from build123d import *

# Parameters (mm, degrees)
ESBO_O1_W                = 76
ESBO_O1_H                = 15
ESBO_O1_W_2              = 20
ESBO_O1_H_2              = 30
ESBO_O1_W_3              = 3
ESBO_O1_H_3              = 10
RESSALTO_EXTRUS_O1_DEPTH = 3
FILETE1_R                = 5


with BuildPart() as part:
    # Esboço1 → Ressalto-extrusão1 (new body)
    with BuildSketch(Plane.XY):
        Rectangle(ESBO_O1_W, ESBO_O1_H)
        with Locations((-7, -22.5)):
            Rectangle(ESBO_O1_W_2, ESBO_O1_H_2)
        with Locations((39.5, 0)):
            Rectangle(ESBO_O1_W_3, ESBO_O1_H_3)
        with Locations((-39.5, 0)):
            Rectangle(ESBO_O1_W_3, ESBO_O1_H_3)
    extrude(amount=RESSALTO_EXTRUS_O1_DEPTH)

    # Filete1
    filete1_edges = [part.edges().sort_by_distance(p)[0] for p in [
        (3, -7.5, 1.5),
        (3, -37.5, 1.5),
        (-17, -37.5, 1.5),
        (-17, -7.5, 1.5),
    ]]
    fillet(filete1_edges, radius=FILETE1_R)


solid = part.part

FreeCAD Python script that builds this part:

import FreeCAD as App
import Part
import Sketcher

V = App.Vector
Q = App.Units.Quantity


def edges_at(feature, points):
    """Names of the edges that pass closest to the given points."""
    edges = feature.Shape.Edges
    near = lambda p: min(range(len(edges)), key=lambda i: edges[i].distToShape(Part.Vertex(*p))[0])
    return sorted({f"Edge{near(p) + 1}" for p in points})

doc = App.newDocument("Part")
body = doc.addObject("PartDesign::Body", "Body")

# Sketch on XY plane
sketch1 = doc.addObject("Sketcher::SketchObject", "Sketch")
body.addObject(sketch1)
sketch1.AttachmentSupport = (doc.XY_Plane, [""])
sketch1.MapMode = "FlatFace"
sketch1.addGeometry([
    Part.LineSegment(V(-38, -5, 0), V(-38, -7.5, 0)),  # 0
    Part.LineSegment(V(-38, -7.5, 0), V(-17, -7.5, 0)),  # 1
    Part.LineSegment(V(-17, -7.5, 0), V(-17, -37.5, 0)),  # 2
    Part.LineSegment(V(-17, -37.5, 0), V(3, -37.5, 0)),  # 3
    Part.LineSegment(V(3, -37.5, 0), V(3, -7.5, 0)),  # 4
    Part.LineSegment(V(3, -7.5, 0), V(38, -7.5, 0)),  # 5
    Part.LineSegment(V(38, -7.5, 0), V(38, -5, 0)),  # 6
    Part.LineSegment(V(38, -5, 0), V(41, -5, 0)),  # 7
    Part.LineSegment(V(41, -5, 0), V(41, 5, 0)),  # 8
    Part.LineSegment(V(41, 5, 0), V(38, 5, 0)),  # 9
    Part.LineSegment(V(38, 5, 0), V(38, 7.5, 0)),  # 10
    Part.LineSegment(V(38, 7.5, 0), V(-38, 7.5, 0)),  # 11
    Part.LineSegment(V(-38, 7.5, 0), V(-38, 5, 0)),  # 12
    Part.LineSegment(V(-38, 5, 0), V(-41, 5, 0)),  # 13
    Part.LineSegment(V(-41, 5, 0), V(-41, -5, 0)),  # 14
    Part.LineSegment(V(-41, -5, 0), V(-38, -5, 0)),  # 15
], False)
sketch1.addConstraint([
    Sketcher.Constraint("Coincident", 0, 2, 1, 1),
    Sketcher.Constraint("Coincident", 1, 2, 2, 1),
    Sketcher.Constraint("Coincident", 2, 2, 3, 1),
    Sketcher.Constraint("Coincident", 3, 2, 4, 1),
    Sketcher.Constraint("Coincident", 4, 2, 5, 1),
    Sketcher.Constraint("Coincident", 5, 2, 6, 1),
    Sketcher.Constraint("Coincident", 6, 2, 7, 1),
    Sketcher.Constraint("Coincident", 7, 2, 8, 1),
    Sketcher.Constraint("Coincident", 8, 2, 9, 1),
    Sketcher.Constraint("Coincident", 9, 2, 10, 1),
    Sketcher.Constraint("Coincident", 10, 2, 11, 1),
    Sketcher.Constraint("Coincident", 11, 2, 12, 1),
    Sketcher.Constraint("Coincident", 12, 2, 13, 1),
    Sketcher.Constraint("Coincident", 13, 2, 14, 1),
    Sketcher.Constraint("Coincident", 14, 2, 15, 1),
    Sketcher.Constraint("Coincident", 15, 2, 0, 1),
    Sketcher.Constraint("Vertical", 0),
    Sketcher.Constraint("Horizontal", 1),
    Sketcher.Constraint("Vertical", 2),
    Sketcher.Constraint("Horizontal", 3),
    Sketcher.Constraint("Vertical", 4),
    Sketcher.Constraint("Horizontal", 5),
    Sketcher.Constraint("Vertical", 6),
    Sketcher.Constraint("Horizontal", 7),
    Sketcher.Constraint("Vertical", 8),
    Sketcher.Constraint("Horizontal", 9),
    Sketcher.Constraint("Vertical", 10),
    Sketcher.Constraint("Horizontal", 11),
    Sketcher.Constraint("Vertical", 12),
    Sketcher.Constraint("Horizontal", 13),
    Sketcher.Constraint("Vertical", 14),
    Sketcher.Constraint("Horizontal", 15),
    Sketcher.Constraint("Symmetric", 0, 2, 10, 2, -1, 1),
    Sketcher.Constraint("Symmetric", 5, 2, 11, 2, -1, 1),
    Sketcher.Constraint("Symmetric", 7, 2, 13, 2, -1, 1),
    Sketcher.Constraint("Symmetric", 9, 2, 12, 2, -2),
    Sketcher.Constraint("Horizontal", 7, 2, 14, 2),
    Sketcher.Constraint("DistanceX", 1, 1, 1, 2, Q("21 mm")),
    Sketcher.Constraint("DistanceX", 3, 1, 3, 2, Q("20 mm")),
    Sketcher.Constraint("DistanceX", 5, 1, 5, 2, Q("35 mm")),
    Sketcher.Constraint("DistanceX", 7, 1, 7, 2, Q("3 mm")),
    Sketcher.Constraint("DistanceY", 2, 2, 2, 1, Q("30 mm")),
    Sketcher.Constraint("DistanceY", 8, 1, 8, 2, Q("10 mm")),
    Sketcher.Constraint("DistanceY", 0, 2, 0, 1, Q("2.5 mm")),
])
pad1 = doc.addObject("PartDesign::Pad", "Pad")
body.addObject(pad1)
pad1.Profile = sketch1
pad1.Length = 3
doc.recompute()

fillet = doc.addObject("PartDesign::Fillet", "Fillet")
body.addObject(fillet)
fillet.Base = (pad1, edges_at(pad1, [
    (3, -7.5, 1.5),
    (3, -37.5, 1.5),
    (-17, -37.5, 1.5),
    (-17, -7.5, 1.5),
]))
fillet.Radius = 5

doc.recompute()
